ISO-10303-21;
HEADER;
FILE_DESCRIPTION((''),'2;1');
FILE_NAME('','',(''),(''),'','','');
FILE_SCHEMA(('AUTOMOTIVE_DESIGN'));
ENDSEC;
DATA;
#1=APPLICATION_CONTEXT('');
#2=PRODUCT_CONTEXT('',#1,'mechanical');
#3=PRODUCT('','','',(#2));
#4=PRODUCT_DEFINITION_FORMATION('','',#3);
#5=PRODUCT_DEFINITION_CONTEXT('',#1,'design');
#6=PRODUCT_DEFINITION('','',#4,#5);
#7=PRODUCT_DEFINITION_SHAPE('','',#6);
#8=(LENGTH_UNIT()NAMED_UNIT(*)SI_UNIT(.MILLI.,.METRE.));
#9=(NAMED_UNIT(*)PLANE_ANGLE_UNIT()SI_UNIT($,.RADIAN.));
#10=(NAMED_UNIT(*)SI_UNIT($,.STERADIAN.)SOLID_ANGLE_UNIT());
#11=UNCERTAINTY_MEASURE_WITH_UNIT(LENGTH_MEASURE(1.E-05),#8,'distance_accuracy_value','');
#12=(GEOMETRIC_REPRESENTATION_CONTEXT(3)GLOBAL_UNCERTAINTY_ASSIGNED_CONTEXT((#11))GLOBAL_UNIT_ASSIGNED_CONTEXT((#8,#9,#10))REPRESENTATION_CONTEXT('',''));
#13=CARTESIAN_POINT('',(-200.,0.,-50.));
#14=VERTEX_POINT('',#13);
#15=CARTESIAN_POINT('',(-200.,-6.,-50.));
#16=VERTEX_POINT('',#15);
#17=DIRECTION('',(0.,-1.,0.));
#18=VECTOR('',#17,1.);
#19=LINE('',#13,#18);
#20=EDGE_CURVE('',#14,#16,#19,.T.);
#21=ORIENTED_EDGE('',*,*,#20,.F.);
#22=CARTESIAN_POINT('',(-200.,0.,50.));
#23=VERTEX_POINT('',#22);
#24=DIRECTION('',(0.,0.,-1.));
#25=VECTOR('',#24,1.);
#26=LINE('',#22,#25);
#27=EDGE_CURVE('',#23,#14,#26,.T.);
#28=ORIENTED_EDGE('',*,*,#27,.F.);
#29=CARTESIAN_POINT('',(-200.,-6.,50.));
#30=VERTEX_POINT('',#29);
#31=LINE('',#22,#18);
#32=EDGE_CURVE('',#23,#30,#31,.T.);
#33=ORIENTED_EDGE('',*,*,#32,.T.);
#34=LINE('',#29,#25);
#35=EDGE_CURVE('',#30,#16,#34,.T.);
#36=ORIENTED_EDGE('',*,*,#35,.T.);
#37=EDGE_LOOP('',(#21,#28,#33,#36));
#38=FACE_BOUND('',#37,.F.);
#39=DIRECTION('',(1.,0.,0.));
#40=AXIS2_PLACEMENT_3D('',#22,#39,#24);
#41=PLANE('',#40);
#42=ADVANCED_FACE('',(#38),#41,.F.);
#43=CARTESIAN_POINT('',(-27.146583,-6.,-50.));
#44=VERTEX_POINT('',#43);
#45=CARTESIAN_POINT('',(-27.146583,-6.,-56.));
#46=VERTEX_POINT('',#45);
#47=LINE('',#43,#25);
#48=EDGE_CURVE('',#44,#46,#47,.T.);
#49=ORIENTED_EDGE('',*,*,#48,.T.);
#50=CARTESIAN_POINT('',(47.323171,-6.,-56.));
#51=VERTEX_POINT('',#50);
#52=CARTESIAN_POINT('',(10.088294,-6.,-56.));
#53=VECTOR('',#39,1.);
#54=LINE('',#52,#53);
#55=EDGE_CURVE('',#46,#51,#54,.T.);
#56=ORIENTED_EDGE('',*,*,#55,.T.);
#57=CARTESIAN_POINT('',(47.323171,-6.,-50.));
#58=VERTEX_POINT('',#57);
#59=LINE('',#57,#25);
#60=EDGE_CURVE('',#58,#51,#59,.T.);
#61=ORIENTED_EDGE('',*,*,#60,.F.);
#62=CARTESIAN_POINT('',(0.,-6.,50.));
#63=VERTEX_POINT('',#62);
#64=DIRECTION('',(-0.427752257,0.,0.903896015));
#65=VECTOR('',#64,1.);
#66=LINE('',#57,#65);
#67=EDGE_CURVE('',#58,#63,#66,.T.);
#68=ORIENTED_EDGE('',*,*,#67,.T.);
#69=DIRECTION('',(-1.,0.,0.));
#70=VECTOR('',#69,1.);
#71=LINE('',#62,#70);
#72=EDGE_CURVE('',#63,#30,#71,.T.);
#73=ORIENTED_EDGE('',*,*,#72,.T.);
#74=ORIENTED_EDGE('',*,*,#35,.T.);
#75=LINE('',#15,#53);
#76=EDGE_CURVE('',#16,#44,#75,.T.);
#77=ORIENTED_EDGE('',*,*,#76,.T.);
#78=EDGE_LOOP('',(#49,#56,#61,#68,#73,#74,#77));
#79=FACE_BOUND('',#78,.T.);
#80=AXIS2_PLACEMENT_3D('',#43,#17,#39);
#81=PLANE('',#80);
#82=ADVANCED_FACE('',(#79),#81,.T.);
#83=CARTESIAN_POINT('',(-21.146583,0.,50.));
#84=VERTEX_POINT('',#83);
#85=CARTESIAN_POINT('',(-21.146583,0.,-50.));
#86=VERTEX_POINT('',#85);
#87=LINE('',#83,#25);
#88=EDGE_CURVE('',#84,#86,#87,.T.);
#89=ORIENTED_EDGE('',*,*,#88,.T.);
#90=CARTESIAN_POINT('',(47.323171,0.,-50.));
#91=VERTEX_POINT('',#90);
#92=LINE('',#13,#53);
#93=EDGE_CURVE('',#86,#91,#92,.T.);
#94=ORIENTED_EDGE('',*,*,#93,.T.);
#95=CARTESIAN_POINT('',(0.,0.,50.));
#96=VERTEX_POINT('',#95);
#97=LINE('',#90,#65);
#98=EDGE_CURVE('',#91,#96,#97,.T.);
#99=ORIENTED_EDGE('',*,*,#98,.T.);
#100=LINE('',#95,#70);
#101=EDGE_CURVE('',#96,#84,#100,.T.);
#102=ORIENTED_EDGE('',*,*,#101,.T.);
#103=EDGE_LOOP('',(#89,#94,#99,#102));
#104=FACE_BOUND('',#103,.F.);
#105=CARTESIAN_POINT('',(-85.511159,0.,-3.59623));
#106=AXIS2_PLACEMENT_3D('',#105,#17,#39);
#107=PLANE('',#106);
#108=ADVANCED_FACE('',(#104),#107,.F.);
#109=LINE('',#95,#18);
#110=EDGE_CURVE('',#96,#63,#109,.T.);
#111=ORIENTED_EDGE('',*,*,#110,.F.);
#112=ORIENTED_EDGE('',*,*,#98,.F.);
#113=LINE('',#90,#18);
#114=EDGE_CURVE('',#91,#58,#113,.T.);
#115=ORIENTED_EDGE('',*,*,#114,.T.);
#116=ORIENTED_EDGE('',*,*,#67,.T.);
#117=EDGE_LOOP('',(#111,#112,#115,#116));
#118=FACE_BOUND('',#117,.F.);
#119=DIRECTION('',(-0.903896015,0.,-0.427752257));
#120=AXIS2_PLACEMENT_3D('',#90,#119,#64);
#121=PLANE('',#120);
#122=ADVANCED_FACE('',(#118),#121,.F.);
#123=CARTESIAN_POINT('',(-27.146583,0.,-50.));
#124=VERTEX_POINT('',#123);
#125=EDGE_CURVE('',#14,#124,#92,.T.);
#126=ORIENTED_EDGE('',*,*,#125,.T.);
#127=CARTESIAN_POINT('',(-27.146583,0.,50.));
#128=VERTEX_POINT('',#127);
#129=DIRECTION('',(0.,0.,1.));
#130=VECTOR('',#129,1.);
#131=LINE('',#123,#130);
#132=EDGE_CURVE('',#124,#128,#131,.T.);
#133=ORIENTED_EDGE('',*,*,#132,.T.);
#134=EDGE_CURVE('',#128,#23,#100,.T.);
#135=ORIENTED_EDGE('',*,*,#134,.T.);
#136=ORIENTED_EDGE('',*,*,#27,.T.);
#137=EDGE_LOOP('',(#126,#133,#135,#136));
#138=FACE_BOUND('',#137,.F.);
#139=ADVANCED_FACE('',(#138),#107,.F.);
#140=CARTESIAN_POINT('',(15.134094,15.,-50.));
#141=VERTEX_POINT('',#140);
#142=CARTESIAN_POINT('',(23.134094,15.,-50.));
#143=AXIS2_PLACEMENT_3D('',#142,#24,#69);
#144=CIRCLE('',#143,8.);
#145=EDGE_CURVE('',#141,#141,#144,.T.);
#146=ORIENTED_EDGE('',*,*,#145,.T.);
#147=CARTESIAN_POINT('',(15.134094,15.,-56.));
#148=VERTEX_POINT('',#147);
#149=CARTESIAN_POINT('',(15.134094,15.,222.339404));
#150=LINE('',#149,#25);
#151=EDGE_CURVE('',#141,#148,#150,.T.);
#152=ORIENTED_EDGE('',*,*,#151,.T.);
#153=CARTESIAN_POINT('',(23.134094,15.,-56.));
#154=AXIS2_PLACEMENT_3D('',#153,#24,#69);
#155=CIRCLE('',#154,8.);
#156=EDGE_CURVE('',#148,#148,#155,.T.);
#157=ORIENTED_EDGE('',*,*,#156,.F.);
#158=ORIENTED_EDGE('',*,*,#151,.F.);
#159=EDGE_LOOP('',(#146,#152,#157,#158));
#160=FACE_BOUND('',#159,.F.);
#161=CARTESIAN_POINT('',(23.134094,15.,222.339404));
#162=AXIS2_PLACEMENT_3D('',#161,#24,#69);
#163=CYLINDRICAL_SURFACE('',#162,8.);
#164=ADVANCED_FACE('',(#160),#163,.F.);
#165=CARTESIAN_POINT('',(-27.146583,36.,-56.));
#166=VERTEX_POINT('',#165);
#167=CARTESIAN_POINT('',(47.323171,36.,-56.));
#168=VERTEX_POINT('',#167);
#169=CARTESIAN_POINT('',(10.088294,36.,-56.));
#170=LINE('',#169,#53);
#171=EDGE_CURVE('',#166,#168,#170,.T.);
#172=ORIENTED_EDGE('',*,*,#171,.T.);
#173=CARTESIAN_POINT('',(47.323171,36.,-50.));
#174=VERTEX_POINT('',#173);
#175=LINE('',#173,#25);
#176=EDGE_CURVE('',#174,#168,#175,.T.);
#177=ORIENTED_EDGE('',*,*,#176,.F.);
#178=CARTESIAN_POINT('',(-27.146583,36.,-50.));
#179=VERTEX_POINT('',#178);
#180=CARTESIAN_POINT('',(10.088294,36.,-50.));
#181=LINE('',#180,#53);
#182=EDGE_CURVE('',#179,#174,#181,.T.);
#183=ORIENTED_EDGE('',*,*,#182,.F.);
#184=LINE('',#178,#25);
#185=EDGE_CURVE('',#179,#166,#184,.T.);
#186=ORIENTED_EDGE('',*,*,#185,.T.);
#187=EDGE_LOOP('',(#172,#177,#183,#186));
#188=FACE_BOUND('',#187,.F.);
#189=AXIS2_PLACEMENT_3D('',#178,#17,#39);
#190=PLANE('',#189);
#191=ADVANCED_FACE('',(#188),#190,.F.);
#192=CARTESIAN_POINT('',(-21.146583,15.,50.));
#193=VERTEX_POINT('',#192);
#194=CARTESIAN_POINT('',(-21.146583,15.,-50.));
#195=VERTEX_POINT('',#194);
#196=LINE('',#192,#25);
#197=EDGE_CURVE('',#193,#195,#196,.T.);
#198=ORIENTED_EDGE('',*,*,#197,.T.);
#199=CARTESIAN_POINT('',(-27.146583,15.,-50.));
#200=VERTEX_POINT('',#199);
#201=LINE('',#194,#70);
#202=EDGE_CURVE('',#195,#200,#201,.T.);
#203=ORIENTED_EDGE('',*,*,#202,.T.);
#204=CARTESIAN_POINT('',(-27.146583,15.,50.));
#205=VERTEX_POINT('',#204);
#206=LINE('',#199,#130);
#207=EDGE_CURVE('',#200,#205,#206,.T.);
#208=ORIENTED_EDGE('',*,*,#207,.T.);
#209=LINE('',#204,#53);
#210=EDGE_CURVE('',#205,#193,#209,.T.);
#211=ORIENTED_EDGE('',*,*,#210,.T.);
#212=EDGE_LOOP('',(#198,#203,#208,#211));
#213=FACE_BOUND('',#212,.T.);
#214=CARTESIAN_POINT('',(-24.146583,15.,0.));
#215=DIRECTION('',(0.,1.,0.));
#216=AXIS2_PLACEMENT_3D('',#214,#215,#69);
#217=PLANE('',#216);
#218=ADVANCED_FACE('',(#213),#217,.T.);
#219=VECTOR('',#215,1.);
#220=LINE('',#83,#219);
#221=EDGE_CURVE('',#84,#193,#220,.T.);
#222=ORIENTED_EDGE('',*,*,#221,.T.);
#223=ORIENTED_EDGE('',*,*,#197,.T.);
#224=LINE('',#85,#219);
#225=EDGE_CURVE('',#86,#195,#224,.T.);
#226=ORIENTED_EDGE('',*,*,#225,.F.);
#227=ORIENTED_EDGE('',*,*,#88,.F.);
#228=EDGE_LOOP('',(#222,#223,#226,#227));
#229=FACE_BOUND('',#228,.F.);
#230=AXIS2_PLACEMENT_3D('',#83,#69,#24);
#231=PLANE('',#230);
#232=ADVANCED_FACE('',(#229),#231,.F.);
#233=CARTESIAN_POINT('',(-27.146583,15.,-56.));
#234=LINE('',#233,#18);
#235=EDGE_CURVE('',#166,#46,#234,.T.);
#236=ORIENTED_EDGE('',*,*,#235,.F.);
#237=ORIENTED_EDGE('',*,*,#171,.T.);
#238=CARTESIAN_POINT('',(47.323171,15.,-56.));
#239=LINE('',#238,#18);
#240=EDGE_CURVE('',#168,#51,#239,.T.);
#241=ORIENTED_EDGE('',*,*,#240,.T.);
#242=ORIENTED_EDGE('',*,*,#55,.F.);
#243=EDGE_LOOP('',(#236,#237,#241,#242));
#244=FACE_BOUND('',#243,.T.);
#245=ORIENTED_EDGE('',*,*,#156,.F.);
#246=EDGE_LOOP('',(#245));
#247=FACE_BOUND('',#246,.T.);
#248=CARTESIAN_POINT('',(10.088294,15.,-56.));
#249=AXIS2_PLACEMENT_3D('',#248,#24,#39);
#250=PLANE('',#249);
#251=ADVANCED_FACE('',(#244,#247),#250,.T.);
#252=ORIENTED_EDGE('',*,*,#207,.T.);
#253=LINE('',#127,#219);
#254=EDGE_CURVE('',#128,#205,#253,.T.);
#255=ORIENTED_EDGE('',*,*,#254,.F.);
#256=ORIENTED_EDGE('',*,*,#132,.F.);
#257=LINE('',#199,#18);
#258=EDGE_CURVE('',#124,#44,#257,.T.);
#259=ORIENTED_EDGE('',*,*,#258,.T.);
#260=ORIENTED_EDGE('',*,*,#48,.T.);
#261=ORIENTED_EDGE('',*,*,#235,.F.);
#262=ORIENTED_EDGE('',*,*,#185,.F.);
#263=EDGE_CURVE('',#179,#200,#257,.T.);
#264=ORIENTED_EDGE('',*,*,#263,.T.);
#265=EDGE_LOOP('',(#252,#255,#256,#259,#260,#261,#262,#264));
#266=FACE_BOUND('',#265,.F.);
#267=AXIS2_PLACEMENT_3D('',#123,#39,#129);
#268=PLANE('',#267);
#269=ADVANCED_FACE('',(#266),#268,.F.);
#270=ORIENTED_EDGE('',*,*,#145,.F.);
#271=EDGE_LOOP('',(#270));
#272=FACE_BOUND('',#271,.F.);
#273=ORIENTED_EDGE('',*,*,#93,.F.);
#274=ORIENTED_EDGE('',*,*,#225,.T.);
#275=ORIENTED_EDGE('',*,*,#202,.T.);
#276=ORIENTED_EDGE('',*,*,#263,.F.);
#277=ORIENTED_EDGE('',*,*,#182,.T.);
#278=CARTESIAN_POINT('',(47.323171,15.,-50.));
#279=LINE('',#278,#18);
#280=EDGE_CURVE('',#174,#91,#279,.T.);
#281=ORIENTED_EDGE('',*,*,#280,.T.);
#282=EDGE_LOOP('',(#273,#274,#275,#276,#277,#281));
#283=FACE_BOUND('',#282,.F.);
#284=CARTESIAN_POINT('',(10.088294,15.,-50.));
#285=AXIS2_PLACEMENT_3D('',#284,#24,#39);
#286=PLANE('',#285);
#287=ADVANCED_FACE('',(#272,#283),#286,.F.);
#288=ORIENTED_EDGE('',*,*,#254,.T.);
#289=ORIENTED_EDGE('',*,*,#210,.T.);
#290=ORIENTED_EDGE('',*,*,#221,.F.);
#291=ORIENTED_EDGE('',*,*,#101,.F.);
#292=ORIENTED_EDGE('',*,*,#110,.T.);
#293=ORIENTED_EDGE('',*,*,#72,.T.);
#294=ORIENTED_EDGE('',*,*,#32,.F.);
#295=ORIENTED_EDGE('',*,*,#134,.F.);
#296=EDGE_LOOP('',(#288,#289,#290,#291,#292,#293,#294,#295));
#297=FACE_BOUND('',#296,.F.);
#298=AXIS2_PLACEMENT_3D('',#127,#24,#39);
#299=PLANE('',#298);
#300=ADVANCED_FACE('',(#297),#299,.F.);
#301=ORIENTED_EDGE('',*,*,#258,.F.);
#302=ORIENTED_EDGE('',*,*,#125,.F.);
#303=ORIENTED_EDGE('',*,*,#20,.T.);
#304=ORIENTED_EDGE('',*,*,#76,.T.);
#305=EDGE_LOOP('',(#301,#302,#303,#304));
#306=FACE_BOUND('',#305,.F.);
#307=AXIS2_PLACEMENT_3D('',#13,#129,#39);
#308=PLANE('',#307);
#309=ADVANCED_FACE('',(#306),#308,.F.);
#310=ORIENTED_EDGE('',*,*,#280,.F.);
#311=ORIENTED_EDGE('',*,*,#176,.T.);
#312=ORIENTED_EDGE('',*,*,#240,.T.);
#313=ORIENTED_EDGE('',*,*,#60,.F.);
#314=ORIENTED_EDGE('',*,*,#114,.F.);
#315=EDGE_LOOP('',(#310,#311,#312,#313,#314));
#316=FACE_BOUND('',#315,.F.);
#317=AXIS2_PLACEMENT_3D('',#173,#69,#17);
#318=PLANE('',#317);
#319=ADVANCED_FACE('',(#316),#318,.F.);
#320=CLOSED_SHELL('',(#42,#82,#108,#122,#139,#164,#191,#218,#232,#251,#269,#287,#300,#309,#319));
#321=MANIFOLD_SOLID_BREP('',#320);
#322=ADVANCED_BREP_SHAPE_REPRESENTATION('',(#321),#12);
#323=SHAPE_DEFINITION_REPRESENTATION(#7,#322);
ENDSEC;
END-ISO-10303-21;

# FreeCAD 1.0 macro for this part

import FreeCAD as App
import Part
import Sketcher
from FreeCAD import Vector

doc = App.newDocument("Part")
body = doc.addObject("PartDesign::Body", "Body")

sketch1 = doc.addObject("Sketcher::SketchObject", "Sketch")
body.addObject(sketch1)
sketch1.AttachmentSupport = (doc.XZ_Plane, [""])
sketch1.MapMode = "FlatFace"
sketch1.addGeometry(Part.LineSegment(Vector(0, 50, 0), Vector(-200, 50, 0)), False)
sketch1.addGeometry(Part.LineSegment(Vector(-200, 50, 0), Vector(-200, -50, 0)), False)
sketch1.addGeometry(Part.LineSegment(Vector(-200, -50, 0), Vector(47.323171, -50, 0)), False)
sketch1.addGeometry(Part.LineSegment(Vector(47.323171, -50, 0), Vector(0, 50, 0)), False)
sketch1.addConstraint(Sketcher.Constraint("Coincident", 0, 2, 1, 1))
sketch1.addConstraint(Sketcher.Constraint("Coincident", 1, 2, 2, 1))
sketch1.addConstraint(Sketcher.Constraint("Coincident", 2, 2, 3, 1))
sketch1.addConstraint(Sketcher.Constraint("Coincident", 3, 2, 0, 1))
sketch1.addConstraint(Sketcher.Constraint("Horizontal", 0))
sketch1.addConstraint(Sketcher.Constraint("Vertical", 1))
sketch1.addConstraint(Sketcher.Constraint("Horizontal", 2))
sketch1.addConstraint(Sketcher.Constraint("PointOnObject", 3, 2, -2))
sketch1.addConstraint(Sketcher.Constraint("DistanceX", 0, 2, 0, 1, 200.0))
sketch1.addConstraint(Sketcher.Constraint("DistanceY", 1, 2, 1, 1, 100.0))
sketch1.addConstraint(Sketcher.Constraint("DistanceY", -1, 1, 0, 2, 50.0))
sketch1.addConstraint(Sketcher.Constraint("DistanceX", 2, 1, 2, 2, 247.323171))
pad1 = doc.addObject("PartDesign::Pad", "Pad")
body.addObject(pad1)
pad1.Profile = sketch1
pad1.Length = 6

sketch2 = doc.addObject("Sketcher::SketchObject", "Sketch001")
body.addObject(sketch2)
sketch2.AttachmentSupport = (doc.XY_Plane, [""])
sketch2.MapMode = "FlatFace"
sketch2.AttachmentOffset = App.Placement(Vector(0, 0, -50), App.Rotation())
sketch2.addGeometry(Part.LineSegment(Vector(-27.146583, -6, 0), Vector(-27.146583, 36, 0)), False)
sketch2.addGeometry(Part.LineSegment(Vector(-27.146583, 36, 0), Vector(47.323171, 36, 0)), False)
sketch2.addGeometry(Part.LineSegment(Vector(47.323171, 36, 0), Vector(47.323171, -6, 0)), False)
sketch2.addGeometry(Part.LineSegment(Vector(47.323171, -6, 0), Vector(-27.146583, -6, 0)), False)
sketch2.addConstraint(Sketcher.Constraint("Coincident", 0, 2, 1, 1))
sketch2.addConstraint(Sketcher.Constraint("Coincident", 1, 2, 2, 1))
sketch2.addConstraint(Sketcher.Constraint("Coincident", 2, 2, 3, 1))
sketch2.addConstraint(Sketcher.Constraint("Coincident", 3, 2, 0, 1))
sketch2.addConstraint(Sketcher.Constraint("Vertical", 0))
sketch2.addConstraint(Sketcher.Constraint("Horizontal", 1))
sketch2.addConstraint(Sketcher.Constraint("Vertical", 2))
sketch2.addConstraint(Sketcher.Constraint("Horizontal", 3))
sketch2.addConstraint(Sketcher.Constraint("DistanceY", 0, 1, 0, 2, 42.0))
sketch2.addConstraint(Sketcher.Constraint("DistanceY", -1, 1, 0, 2, 36.0))
sketch2.addConstraint(Sketcher.Constraint("DistanceX", 1, 1, 1, 2, 74.469754))
sketch2.addConstraint(Sketcher.Constraint("DistanceX", -1, 1, 1, 2, 47.323171))
pad2 = doc.addObject("PartDesign::Pad", "Pad001")
body.addObject(pad2)
pad2.Profile = sketch2
pad2.Length = 6
pad2.Reversed = True

sketch3 = doc.addObject("Sketcher::SketchObject", "Sketch002")
body.addObject(sketch3)
sketch3.AttachmentSupport = (doc.XY_Plane, [""])
sketch3.MapMode = "FlatFace"
sketch3.AttachmentOffset = App.Placement(Vector(0, 0, -50), App.Rotation())
sketch3.addGeometry(Part.Circle(Vector(23.134094, 15, 0), Vector(0, 0, 1), 8), False)
sketch3.addConstraint(Sketcher.Constraint("Diameter", 0, 16.0))
sketch3.addConstraint(Sketcher.Constraint("DistanceY", -1, 1, 0, 3, 15.0))
sketch3.addConstraint(Sketcher.Constraint("DistanceX", -1, 1, 0, 3, 23.134094))
doc.recompute()
hole = doc.addObject("PartDesign::Hole", "Hole")
body.addObject(hole)
hole.Profile = sketch3
hole.ThreadType = "None"
hole.Diameter = 16
hole.DepthType = "ThroughAll"

sketch4 = doc.addObject("Sketcher::SketchObject", "Sketch003")
body.addObject(sketch4)
sketch4.AttachmentSupport = (doc.XZ_Plane, [""])
sketch4.MapMode = "FlatFace"
sketch4.addGeometry(Part.LineSegment(Vector(-27.146583, 50, 0), Vector(-21.146583, 50, 0)), False)
sketch4.addGeometry(Part.LineSegment(Vector(-21.146583, 50, 0), Vector(-21.146583, -50, 0)), False)
sketch4.addGeometry(Part.LineSegment(Vector(-21.146583, -50, 0), Vector(-27.146583, -50, 0)), False)
sketch4.addGeometry(Part.LineSegment(Vector(-27.146583, -50, 0), Vector(-27.146583, 50, 0)), False)
sketch4.addConstraint(Sketcher.Constraint("Coincident", 0, 2, 1, 1))
sketch4.addConstraint(Sketcher.Constraint("Coincident", 1, 2, 2, 1))
sketch4.addConstraint(Sketcher.Constraint("Coincident", 2, 2, 3, 1))
sketch4.addConstraint(Sketcher.Constraint("Coincident", 3, 2, 0, 1))
sketch4.addConstraint(Sketcher.Constraint("Horizontal", 0))
sketch4.addConstraint(Sketcher.Constraint("Vertical", 1))
sketch4.addConstraint(Sketcher.Constraint("Horizontal", 2))
sketch4.addConstraint(Sketcher.Constraint("Vertical", 3))
sketch4.addConstraint(Sketcher.Constraint("DistanceX", 0, 1, 0, 2, 6.0))
sketch4.addConstraint(Sketcher.Constraint("DistanceY", 1, 2, 1, 1, 100.0))
sketch4.addConstraint(Sketcher.Constraint("DistanceY", -1, 1, 0, 2, 50.0))
sketch4.addConstraint(Sketcher.Constraint("DistanceX", 0, 2, -1, 1, 21.146583))
pad3 = doc.addObject("PartDesign::Pad", "Pad002")
body.addObject(pad3)
pad3.Profile = sketch4
pad3.Length = 15
pad3.Reversed = True

doc.recompute()
